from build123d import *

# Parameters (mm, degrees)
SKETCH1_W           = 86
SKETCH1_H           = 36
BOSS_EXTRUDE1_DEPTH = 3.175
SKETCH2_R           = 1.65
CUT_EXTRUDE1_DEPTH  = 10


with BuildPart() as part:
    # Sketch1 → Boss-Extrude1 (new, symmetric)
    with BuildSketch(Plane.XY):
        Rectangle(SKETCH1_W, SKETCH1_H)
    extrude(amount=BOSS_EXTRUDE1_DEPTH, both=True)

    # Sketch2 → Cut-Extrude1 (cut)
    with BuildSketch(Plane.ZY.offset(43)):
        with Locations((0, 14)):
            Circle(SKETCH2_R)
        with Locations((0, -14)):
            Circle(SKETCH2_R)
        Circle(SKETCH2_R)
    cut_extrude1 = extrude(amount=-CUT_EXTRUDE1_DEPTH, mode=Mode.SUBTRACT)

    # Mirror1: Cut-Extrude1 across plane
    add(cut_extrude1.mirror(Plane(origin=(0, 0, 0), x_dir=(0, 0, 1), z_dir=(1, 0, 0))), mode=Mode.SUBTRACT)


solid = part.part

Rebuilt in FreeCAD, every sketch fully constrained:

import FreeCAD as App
import Part
import Sketcher
from FreeCAD import Vector
Q = App.Units.Quantity

doc = App.newDocument("Part")
body = doc.addObject("PartDesign::Body", "Body")

# Sketch on XY plane
sketch1 = body.newObject("Sketcher::SketchObject", "Sketch")
sketch1.AttachmentSupport = (doc.getObject("XY_Plane"), [""])
sketch1.MapMode = "FlatFace"
sketch1.addGeometry(Part.LineSegment(Vector(-43, 18, 0), Vector(-43, -18, 0)), False)
sketch1.addGeometry(Part.LineSegment(Vector(-43, -18, 0), Vector(43, -18, 0)), False)
sketch1.addGeometry(Part.LineSegment(Vector(43, -18, 0), Vector(43, 18, 0)), False)
sketch1.addGeometry(Part.LineSegment(Vector(43, 18, 0), Vector(-43, 18, 0)), False)
sketch1.addConstraint(Sketcher.Constraint("Coincident", 0, 2, 1, 1))
sketch1.addConstraint(Sketcher.Constraint("Coincident", 1, 2, 2, 1))
sketch1.addConstraint(Sketcher.Constraint("Coincident", 2, 2, 3, 1))
sketch1.addConstraint(Sketcher.Constraint("Coincident", 3, 2, 0, 1))
sketch1.addConstraint(Sketcher.Constraint("Vertical", 0))
sketch1.addConstraint(Sketcher.Constraint("Horizontal", 1))
sketch1.addConstraint(Sketcher.Constraint("Vertical", 2))
sketch1.addConstraint(Sketcher.Constraint("Horizontal", 3))
sketch1.addConstraint(Sketcher.Constraint("Symmetric", 0, 2, 2, 2, -1, 1))
sketch1.addConstraint(Sketcher.Constraint("DistanceX", 1, 1, 1, 2, Q("86 mm")))
sketch1.addConstraint(Sketcher.Constraint("DistanceY", 0, 2, 0, 1, Q("36 mm")))
pad1 = body.newObject("PartDesign::Pad", "Pad")
pad1.Profile = sketch1
pad1.Length = 6.35
pad1.Midplane = True

# Sketch on YZ plane
sketch2 = body.newObject("Sketcher::SketchObject", "Sketch001")
sketch2.AttachmentSupport = (doc.getObject("YZ_Plane"), [""])
sketch2.MapMode = "FlatFace"
sketch2.AttachmentOffset = App.Placement(Vector(0, 0, -43), App.Rotation())
sketch2.addGeometry(Part.Circle(Vector(14, 0, 0), Vector(0, 0, 1), 1.6), False)
sketch2.addGeometry(Part.Circle(Vector(-14, 0, 0), Vector(0, 0, 1), 1.6), False)
sketch2.addGeometry(Part.Circle(Vector(0, 0, 0), Vector(0, 0, 1), 1.6), False)
sketch2.addConstraint(Sketcher.Constraint("Coincident", 2, 3, -1, 1))
sketch2.addConstraint(Sketcher.Constraint("Equal", 0, 1))
sketch2.addConstraint(Sketcher.Constraint("Equal", 1, 2))
sketch2.addConstraint(Sketcher.Constraint("Symmetric", 0, 3, 1, 3, -1, 1))
sketch2.addConstraint(Sketcher.Constraint("PointOnObject", 0, 3, -1))
sketch2.addConstraint(Sketcher.Constraint("Diameter", 0, Q("3.3 mm")))
sketch2.addConstraint(Sketcher.Constraint("DistanceX", -1, 1, 0, 3, Q("14 mm")))
pocket1 = body.newObject("PartDesign::Pocket", "Pocket")
pocket1.Profile = sketch2
pocket1.Length = 10
pocket1.Reversed = True
doc.recompute()

mirrored = body.newObject("PartDesign::Mirrored", "Mirrored")
mirrored.Originals = [pocket1]
mirrored.MirrorPlane = (doc.getObject("YZ_Plane"), [""])
body.Tip = mirrored

doc.recompute()
